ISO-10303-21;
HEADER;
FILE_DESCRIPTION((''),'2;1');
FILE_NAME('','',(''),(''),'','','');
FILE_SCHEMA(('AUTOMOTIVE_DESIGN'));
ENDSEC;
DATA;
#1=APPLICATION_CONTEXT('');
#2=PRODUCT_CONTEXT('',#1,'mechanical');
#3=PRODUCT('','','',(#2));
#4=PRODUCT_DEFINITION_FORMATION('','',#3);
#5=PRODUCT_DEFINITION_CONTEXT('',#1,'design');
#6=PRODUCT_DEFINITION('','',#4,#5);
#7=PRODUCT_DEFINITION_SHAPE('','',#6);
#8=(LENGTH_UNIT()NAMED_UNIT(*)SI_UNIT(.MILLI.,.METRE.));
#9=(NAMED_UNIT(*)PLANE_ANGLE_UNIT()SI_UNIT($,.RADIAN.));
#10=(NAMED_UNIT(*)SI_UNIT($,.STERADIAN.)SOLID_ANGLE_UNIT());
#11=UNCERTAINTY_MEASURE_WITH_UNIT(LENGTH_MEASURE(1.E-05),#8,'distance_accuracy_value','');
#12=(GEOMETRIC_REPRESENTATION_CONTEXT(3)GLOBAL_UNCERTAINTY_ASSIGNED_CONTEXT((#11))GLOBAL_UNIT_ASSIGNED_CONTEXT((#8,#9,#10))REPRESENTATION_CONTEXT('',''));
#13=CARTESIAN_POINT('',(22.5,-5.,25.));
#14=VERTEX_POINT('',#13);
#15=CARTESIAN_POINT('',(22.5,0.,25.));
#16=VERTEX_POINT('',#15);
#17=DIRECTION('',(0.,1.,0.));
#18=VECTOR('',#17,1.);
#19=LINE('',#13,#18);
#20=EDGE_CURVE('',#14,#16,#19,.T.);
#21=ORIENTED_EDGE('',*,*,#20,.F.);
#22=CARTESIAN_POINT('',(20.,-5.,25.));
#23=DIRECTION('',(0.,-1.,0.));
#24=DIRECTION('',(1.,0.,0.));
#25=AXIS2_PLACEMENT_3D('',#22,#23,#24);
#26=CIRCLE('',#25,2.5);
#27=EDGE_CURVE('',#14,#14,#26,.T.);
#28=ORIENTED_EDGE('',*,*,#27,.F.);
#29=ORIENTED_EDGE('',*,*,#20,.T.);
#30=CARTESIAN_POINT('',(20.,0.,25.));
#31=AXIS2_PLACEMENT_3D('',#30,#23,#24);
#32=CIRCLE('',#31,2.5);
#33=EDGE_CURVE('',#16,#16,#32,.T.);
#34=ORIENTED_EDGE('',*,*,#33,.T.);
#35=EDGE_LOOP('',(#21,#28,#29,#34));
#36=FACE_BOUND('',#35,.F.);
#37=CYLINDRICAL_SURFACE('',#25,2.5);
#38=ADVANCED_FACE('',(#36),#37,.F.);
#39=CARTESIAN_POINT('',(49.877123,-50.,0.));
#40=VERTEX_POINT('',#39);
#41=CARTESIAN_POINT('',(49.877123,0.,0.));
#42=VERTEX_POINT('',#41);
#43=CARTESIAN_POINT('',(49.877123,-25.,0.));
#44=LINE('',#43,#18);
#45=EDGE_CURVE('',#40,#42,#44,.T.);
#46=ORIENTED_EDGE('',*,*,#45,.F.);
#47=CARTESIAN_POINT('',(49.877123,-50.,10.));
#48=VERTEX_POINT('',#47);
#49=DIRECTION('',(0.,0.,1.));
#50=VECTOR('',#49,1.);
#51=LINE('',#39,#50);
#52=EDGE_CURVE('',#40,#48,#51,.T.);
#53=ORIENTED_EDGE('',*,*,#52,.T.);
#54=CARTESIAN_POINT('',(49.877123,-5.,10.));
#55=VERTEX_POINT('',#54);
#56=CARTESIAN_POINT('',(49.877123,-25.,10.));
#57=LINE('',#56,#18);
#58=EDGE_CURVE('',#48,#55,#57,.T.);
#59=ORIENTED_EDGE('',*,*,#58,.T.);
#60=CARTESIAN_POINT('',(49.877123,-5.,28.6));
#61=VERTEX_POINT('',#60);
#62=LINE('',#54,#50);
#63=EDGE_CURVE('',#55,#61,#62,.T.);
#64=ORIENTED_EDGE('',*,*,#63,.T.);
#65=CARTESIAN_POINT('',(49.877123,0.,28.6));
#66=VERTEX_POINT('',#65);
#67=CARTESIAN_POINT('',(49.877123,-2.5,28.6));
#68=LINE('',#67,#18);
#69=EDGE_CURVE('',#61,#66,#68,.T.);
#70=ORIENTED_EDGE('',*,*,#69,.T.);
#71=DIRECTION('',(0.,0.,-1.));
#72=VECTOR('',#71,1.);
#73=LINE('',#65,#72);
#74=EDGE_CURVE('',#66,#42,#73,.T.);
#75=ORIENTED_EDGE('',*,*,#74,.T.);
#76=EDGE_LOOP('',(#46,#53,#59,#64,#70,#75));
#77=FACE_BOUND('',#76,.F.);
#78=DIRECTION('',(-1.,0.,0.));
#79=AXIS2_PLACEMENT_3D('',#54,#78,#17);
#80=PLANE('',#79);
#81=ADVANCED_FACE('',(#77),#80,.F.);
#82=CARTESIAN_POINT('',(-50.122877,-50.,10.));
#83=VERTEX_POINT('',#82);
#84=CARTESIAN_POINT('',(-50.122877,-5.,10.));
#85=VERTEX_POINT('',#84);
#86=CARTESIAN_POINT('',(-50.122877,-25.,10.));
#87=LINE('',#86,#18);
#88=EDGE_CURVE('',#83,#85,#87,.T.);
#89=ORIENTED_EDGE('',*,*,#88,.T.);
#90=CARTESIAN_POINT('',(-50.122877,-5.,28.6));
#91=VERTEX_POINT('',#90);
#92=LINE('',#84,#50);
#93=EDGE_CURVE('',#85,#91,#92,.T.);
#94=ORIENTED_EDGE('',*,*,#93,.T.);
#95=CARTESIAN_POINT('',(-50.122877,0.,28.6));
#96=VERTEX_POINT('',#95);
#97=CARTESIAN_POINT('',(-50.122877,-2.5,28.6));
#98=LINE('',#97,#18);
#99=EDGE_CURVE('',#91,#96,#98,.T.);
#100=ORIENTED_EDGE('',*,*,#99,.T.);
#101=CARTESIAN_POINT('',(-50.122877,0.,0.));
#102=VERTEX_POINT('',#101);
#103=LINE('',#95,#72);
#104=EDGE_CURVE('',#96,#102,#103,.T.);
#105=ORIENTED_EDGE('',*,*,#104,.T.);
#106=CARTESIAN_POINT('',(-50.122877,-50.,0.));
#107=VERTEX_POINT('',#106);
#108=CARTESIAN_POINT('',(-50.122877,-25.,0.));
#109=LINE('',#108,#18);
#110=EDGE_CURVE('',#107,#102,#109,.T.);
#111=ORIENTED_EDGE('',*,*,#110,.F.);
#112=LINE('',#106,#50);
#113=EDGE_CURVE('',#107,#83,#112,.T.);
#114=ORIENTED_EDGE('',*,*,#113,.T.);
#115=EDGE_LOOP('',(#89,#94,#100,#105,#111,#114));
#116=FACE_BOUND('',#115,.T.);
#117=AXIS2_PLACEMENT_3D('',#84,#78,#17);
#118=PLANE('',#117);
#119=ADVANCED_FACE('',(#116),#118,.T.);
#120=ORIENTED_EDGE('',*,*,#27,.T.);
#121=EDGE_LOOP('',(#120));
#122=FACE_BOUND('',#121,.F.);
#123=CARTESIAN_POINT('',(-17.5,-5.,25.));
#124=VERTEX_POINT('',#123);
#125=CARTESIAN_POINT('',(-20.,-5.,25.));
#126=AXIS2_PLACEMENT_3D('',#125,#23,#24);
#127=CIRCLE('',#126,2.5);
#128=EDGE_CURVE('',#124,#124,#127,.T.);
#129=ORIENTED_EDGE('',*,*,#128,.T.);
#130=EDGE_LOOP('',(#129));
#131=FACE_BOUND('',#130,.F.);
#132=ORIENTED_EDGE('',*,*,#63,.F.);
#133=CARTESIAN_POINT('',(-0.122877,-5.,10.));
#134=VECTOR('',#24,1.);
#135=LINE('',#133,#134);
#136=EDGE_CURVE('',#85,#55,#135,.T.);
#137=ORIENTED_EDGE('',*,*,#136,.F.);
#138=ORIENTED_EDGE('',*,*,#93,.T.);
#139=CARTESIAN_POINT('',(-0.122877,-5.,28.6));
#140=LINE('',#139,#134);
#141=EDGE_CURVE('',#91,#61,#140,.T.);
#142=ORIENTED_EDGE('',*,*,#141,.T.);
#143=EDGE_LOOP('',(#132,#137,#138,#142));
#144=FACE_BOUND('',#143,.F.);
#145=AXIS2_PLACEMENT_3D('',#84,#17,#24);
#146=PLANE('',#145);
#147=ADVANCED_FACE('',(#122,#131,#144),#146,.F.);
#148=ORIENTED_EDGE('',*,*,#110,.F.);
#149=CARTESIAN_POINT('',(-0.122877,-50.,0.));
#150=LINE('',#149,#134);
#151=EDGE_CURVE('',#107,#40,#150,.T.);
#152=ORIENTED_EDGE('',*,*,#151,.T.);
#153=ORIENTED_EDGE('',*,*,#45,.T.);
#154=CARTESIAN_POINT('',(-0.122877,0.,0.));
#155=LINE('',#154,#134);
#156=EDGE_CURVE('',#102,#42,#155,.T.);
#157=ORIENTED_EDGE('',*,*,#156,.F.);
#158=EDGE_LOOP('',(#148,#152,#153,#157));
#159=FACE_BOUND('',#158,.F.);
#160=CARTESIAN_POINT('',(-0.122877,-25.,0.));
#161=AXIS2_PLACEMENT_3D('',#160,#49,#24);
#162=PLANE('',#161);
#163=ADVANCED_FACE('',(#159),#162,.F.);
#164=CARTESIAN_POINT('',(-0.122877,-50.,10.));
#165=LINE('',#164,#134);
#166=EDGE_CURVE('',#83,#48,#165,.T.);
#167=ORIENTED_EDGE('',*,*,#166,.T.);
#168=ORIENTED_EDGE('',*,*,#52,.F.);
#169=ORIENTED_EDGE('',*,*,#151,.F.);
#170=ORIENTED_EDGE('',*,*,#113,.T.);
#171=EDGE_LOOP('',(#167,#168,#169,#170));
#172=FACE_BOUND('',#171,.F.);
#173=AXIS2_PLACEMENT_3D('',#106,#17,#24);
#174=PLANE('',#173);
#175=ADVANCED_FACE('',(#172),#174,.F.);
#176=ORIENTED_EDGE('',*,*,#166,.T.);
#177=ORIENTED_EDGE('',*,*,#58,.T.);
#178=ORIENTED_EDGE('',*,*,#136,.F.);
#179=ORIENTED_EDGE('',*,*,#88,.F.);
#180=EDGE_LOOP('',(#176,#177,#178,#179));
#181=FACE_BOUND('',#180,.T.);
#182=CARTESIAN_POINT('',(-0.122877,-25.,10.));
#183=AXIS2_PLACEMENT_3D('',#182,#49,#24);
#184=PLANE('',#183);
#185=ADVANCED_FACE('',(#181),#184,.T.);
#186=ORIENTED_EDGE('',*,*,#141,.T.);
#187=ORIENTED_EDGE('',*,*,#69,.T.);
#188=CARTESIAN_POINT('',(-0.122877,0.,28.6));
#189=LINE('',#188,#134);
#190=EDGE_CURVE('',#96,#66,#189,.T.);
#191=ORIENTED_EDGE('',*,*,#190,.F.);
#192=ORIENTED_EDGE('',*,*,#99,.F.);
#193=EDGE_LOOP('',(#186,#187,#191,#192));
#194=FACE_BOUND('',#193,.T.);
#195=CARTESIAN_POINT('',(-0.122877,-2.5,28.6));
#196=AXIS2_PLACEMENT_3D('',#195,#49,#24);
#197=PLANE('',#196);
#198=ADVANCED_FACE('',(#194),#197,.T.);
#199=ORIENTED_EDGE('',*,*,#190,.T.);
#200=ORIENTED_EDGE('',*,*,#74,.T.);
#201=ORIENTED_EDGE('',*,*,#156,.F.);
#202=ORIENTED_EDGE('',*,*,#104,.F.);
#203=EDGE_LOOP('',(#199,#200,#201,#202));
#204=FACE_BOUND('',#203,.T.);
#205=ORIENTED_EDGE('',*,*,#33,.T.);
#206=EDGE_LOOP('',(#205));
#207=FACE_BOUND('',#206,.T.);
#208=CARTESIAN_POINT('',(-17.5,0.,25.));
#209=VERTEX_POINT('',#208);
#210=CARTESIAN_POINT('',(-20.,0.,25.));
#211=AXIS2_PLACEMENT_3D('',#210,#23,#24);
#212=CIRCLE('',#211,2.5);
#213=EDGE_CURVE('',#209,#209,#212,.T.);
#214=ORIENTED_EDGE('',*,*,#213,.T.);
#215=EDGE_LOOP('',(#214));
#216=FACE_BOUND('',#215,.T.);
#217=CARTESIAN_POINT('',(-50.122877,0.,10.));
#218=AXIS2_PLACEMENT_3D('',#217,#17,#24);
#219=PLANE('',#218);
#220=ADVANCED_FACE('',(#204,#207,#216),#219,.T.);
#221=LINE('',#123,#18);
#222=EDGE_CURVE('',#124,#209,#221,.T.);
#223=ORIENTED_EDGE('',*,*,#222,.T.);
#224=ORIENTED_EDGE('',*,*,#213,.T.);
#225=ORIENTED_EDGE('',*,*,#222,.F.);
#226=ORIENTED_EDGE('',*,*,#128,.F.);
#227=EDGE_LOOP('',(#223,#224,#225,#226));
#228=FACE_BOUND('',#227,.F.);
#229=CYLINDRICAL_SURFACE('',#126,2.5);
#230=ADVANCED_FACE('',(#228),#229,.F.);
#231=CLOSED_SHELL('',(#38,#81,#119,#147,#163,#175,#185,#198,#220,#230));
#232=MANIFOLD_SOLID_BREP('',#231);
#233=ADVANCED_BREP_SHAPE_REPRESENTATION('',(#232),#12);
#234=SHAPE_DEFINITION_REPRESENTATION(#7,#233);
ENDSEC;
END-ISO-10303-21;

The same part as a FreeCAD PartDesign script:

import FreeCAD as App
import Part
import Sketcher
Q = App.Units.Quantity

doc = App.newDocument("Part")
body = doc.addObject("PartDesign::Body", "Body")

# Sketch on XY plane
sketch1 = body.newObject("Sketcher::SketchObject", "Sketch")
sketch1.AttachmentSupport = (doc.getObject("XY_Plane"), [""])
sketch1.MapMode = "FlatFace"
sketch1.addGeometry([
    Part.LineSegment(App.Vector(-50, 0, 0), App.Vector(-50, -50, 0)),
    Part.LineSegment(App.Vector(-50, -50, 0), App.Vector(50, -50, 0)),
    Part.LineSegment(App.Vector(50, -50, 0), App.Vector(50, 0, 0)),
    Part.LineSegment(App.Vector(50, 0, 0), App.Vector(-50, 0, 0)),
], False)
sketch1.addConstraint([
    Sketcher.Constraint("Coincident", 0, 2, 1, 1),
    Sketcher.Constraint("Coincident", 1, 2, 2, 1),
    Sketcher.Constraint("Coincident", 2, 2, 3, 1),
    Sketcher.Constraint("Coincident", 3, 2, 0, 1),
    Sketcher.Constraint("Vertical", 0),
    Sketcher.Constraint("Horizontal", 1),
    Sketcher.Constraint("Vertical", 2),
    Sketcher.Constraint("Horizontal", 3),
    Sketcher.Constraint("PointOnObject", 2, 2, -1),
    Sketcher.Constraint("DistanceX", 1, 1, 1, 2, Q("100 mm")),
    Sketcher.Constraint("DistanceY", 0, 2, 0, 1, Q("50 mm")),
    Sketcher.Constraint("DistanceX", 0, 2, -1, 1, Q("50.122877 mm")),
])
pad1 = body.newObject("PartDesign::Pad", "Pad")
pad1.Profile = sketch1
pad1.Length = 10

# Sketch on XY plane
sketch2 = body.newObject("Sketcher::SketchObject", "Sketch001")
sketch2.AttachmentSupport = (doc.getObject("XY_Plane"), [""])
sketch2.MapMode = "FlatFace"
sketch2.AttachmentOffset = App.Placement(App.Vector(0, 0, 10), App.Rotation())
sketch2.addGeometry([
    Part.LineSegment(App.Vector(-50, 0, 0), App.Vector(-50, -5, 0)),
    Part.LineSegment(App.Vector(-50, -5, 0), App.Vector(50, -5, 0)),
    Part.LineSegment(App.Vector(50, -5, 0), App.Vector(50, 0, 0)),
    Part.LineSegment(App.Vector(50, 0, 0), App.Vector(-50, 0, 0)),
], False)
sketch2.addConstraint([
    Sketcher.Constraint("Coincident", 0, 2, 1, 1),
    Sketcher.Constraint("Coincident", 1, 2, 2, 1),
    Sketcher.Constraint("Coincident", 2, 2, 3, 1),
    Sketcher.Constraint("Coincident", 3, 2, 0, 1),
    Sketcher.Constraint("Vertical", 0),
    Sketcher.Constraint("Horizontal", 1),
    Sketcher.Constraint("Vertical", 2),
    Sketcher.Constraint("Horizontal", 3),
    Sketcher.Constraint("PointOnObject", 2, 2, -1),
    Sketcher.Constraint("DistanceX", 1, 1, 1, 2, Q("100 mm")),
    Sketcher.Constraint("DistanceY", 0, 2, 0, 1, Q("5 mm")),
    Sketcher.Constraint("DistanceX", 0, 2, -1, 1, Q("50.122877 mm")),
])
pad2 = body.newObject("PartDesign::Pad", "Pad001")
pad2.Profile = sketch2
pad2.Length = 18.6

# Sketch on XZ plane
sketch3 = body.newObject("Sketcher::SketchObject", "Sketch002")
sketch3.AttachmentSupport = (doc.getObject("XZ_Plane"), [""])
sketch3.MapMode = "FlatFace"
sketch3.AttachmentOffset = App.Placement(App.Vector(0, 0, 5), App.Rotation())
sketch3.addGeometry([
    Part.Circle(App.Vector(20, 25, 0), App.Vector(0, 0, 1), 2.5),
    Part.Circle(App.Vector(-20, 25, 0), App.Vector(0, 0, 1), 2.5),
], False)
sketch3.addConstraint([
    Sketcher.Constraint("Equal", 0, 1),
    Sketcher.Constraint("Symmetric", 0, 3, 1, 3, -2),
    Sketcher.Constraint("Diameter", 0, Q("5 mm")),
    Sketcher.Constraint("DistanceX", -1, 1, 0, 3, Q("20 mm")),
    Sketcher.Constraint("DistanceY", -1, 1, 0, 3, Q("25 mm")),
])
pocket1 = body.newObject("PartDesign::Pocket", "Pocket")
pocket1.Profile = sketch3
pocket1.Type = "ThroughAll"

doc.recompute()
